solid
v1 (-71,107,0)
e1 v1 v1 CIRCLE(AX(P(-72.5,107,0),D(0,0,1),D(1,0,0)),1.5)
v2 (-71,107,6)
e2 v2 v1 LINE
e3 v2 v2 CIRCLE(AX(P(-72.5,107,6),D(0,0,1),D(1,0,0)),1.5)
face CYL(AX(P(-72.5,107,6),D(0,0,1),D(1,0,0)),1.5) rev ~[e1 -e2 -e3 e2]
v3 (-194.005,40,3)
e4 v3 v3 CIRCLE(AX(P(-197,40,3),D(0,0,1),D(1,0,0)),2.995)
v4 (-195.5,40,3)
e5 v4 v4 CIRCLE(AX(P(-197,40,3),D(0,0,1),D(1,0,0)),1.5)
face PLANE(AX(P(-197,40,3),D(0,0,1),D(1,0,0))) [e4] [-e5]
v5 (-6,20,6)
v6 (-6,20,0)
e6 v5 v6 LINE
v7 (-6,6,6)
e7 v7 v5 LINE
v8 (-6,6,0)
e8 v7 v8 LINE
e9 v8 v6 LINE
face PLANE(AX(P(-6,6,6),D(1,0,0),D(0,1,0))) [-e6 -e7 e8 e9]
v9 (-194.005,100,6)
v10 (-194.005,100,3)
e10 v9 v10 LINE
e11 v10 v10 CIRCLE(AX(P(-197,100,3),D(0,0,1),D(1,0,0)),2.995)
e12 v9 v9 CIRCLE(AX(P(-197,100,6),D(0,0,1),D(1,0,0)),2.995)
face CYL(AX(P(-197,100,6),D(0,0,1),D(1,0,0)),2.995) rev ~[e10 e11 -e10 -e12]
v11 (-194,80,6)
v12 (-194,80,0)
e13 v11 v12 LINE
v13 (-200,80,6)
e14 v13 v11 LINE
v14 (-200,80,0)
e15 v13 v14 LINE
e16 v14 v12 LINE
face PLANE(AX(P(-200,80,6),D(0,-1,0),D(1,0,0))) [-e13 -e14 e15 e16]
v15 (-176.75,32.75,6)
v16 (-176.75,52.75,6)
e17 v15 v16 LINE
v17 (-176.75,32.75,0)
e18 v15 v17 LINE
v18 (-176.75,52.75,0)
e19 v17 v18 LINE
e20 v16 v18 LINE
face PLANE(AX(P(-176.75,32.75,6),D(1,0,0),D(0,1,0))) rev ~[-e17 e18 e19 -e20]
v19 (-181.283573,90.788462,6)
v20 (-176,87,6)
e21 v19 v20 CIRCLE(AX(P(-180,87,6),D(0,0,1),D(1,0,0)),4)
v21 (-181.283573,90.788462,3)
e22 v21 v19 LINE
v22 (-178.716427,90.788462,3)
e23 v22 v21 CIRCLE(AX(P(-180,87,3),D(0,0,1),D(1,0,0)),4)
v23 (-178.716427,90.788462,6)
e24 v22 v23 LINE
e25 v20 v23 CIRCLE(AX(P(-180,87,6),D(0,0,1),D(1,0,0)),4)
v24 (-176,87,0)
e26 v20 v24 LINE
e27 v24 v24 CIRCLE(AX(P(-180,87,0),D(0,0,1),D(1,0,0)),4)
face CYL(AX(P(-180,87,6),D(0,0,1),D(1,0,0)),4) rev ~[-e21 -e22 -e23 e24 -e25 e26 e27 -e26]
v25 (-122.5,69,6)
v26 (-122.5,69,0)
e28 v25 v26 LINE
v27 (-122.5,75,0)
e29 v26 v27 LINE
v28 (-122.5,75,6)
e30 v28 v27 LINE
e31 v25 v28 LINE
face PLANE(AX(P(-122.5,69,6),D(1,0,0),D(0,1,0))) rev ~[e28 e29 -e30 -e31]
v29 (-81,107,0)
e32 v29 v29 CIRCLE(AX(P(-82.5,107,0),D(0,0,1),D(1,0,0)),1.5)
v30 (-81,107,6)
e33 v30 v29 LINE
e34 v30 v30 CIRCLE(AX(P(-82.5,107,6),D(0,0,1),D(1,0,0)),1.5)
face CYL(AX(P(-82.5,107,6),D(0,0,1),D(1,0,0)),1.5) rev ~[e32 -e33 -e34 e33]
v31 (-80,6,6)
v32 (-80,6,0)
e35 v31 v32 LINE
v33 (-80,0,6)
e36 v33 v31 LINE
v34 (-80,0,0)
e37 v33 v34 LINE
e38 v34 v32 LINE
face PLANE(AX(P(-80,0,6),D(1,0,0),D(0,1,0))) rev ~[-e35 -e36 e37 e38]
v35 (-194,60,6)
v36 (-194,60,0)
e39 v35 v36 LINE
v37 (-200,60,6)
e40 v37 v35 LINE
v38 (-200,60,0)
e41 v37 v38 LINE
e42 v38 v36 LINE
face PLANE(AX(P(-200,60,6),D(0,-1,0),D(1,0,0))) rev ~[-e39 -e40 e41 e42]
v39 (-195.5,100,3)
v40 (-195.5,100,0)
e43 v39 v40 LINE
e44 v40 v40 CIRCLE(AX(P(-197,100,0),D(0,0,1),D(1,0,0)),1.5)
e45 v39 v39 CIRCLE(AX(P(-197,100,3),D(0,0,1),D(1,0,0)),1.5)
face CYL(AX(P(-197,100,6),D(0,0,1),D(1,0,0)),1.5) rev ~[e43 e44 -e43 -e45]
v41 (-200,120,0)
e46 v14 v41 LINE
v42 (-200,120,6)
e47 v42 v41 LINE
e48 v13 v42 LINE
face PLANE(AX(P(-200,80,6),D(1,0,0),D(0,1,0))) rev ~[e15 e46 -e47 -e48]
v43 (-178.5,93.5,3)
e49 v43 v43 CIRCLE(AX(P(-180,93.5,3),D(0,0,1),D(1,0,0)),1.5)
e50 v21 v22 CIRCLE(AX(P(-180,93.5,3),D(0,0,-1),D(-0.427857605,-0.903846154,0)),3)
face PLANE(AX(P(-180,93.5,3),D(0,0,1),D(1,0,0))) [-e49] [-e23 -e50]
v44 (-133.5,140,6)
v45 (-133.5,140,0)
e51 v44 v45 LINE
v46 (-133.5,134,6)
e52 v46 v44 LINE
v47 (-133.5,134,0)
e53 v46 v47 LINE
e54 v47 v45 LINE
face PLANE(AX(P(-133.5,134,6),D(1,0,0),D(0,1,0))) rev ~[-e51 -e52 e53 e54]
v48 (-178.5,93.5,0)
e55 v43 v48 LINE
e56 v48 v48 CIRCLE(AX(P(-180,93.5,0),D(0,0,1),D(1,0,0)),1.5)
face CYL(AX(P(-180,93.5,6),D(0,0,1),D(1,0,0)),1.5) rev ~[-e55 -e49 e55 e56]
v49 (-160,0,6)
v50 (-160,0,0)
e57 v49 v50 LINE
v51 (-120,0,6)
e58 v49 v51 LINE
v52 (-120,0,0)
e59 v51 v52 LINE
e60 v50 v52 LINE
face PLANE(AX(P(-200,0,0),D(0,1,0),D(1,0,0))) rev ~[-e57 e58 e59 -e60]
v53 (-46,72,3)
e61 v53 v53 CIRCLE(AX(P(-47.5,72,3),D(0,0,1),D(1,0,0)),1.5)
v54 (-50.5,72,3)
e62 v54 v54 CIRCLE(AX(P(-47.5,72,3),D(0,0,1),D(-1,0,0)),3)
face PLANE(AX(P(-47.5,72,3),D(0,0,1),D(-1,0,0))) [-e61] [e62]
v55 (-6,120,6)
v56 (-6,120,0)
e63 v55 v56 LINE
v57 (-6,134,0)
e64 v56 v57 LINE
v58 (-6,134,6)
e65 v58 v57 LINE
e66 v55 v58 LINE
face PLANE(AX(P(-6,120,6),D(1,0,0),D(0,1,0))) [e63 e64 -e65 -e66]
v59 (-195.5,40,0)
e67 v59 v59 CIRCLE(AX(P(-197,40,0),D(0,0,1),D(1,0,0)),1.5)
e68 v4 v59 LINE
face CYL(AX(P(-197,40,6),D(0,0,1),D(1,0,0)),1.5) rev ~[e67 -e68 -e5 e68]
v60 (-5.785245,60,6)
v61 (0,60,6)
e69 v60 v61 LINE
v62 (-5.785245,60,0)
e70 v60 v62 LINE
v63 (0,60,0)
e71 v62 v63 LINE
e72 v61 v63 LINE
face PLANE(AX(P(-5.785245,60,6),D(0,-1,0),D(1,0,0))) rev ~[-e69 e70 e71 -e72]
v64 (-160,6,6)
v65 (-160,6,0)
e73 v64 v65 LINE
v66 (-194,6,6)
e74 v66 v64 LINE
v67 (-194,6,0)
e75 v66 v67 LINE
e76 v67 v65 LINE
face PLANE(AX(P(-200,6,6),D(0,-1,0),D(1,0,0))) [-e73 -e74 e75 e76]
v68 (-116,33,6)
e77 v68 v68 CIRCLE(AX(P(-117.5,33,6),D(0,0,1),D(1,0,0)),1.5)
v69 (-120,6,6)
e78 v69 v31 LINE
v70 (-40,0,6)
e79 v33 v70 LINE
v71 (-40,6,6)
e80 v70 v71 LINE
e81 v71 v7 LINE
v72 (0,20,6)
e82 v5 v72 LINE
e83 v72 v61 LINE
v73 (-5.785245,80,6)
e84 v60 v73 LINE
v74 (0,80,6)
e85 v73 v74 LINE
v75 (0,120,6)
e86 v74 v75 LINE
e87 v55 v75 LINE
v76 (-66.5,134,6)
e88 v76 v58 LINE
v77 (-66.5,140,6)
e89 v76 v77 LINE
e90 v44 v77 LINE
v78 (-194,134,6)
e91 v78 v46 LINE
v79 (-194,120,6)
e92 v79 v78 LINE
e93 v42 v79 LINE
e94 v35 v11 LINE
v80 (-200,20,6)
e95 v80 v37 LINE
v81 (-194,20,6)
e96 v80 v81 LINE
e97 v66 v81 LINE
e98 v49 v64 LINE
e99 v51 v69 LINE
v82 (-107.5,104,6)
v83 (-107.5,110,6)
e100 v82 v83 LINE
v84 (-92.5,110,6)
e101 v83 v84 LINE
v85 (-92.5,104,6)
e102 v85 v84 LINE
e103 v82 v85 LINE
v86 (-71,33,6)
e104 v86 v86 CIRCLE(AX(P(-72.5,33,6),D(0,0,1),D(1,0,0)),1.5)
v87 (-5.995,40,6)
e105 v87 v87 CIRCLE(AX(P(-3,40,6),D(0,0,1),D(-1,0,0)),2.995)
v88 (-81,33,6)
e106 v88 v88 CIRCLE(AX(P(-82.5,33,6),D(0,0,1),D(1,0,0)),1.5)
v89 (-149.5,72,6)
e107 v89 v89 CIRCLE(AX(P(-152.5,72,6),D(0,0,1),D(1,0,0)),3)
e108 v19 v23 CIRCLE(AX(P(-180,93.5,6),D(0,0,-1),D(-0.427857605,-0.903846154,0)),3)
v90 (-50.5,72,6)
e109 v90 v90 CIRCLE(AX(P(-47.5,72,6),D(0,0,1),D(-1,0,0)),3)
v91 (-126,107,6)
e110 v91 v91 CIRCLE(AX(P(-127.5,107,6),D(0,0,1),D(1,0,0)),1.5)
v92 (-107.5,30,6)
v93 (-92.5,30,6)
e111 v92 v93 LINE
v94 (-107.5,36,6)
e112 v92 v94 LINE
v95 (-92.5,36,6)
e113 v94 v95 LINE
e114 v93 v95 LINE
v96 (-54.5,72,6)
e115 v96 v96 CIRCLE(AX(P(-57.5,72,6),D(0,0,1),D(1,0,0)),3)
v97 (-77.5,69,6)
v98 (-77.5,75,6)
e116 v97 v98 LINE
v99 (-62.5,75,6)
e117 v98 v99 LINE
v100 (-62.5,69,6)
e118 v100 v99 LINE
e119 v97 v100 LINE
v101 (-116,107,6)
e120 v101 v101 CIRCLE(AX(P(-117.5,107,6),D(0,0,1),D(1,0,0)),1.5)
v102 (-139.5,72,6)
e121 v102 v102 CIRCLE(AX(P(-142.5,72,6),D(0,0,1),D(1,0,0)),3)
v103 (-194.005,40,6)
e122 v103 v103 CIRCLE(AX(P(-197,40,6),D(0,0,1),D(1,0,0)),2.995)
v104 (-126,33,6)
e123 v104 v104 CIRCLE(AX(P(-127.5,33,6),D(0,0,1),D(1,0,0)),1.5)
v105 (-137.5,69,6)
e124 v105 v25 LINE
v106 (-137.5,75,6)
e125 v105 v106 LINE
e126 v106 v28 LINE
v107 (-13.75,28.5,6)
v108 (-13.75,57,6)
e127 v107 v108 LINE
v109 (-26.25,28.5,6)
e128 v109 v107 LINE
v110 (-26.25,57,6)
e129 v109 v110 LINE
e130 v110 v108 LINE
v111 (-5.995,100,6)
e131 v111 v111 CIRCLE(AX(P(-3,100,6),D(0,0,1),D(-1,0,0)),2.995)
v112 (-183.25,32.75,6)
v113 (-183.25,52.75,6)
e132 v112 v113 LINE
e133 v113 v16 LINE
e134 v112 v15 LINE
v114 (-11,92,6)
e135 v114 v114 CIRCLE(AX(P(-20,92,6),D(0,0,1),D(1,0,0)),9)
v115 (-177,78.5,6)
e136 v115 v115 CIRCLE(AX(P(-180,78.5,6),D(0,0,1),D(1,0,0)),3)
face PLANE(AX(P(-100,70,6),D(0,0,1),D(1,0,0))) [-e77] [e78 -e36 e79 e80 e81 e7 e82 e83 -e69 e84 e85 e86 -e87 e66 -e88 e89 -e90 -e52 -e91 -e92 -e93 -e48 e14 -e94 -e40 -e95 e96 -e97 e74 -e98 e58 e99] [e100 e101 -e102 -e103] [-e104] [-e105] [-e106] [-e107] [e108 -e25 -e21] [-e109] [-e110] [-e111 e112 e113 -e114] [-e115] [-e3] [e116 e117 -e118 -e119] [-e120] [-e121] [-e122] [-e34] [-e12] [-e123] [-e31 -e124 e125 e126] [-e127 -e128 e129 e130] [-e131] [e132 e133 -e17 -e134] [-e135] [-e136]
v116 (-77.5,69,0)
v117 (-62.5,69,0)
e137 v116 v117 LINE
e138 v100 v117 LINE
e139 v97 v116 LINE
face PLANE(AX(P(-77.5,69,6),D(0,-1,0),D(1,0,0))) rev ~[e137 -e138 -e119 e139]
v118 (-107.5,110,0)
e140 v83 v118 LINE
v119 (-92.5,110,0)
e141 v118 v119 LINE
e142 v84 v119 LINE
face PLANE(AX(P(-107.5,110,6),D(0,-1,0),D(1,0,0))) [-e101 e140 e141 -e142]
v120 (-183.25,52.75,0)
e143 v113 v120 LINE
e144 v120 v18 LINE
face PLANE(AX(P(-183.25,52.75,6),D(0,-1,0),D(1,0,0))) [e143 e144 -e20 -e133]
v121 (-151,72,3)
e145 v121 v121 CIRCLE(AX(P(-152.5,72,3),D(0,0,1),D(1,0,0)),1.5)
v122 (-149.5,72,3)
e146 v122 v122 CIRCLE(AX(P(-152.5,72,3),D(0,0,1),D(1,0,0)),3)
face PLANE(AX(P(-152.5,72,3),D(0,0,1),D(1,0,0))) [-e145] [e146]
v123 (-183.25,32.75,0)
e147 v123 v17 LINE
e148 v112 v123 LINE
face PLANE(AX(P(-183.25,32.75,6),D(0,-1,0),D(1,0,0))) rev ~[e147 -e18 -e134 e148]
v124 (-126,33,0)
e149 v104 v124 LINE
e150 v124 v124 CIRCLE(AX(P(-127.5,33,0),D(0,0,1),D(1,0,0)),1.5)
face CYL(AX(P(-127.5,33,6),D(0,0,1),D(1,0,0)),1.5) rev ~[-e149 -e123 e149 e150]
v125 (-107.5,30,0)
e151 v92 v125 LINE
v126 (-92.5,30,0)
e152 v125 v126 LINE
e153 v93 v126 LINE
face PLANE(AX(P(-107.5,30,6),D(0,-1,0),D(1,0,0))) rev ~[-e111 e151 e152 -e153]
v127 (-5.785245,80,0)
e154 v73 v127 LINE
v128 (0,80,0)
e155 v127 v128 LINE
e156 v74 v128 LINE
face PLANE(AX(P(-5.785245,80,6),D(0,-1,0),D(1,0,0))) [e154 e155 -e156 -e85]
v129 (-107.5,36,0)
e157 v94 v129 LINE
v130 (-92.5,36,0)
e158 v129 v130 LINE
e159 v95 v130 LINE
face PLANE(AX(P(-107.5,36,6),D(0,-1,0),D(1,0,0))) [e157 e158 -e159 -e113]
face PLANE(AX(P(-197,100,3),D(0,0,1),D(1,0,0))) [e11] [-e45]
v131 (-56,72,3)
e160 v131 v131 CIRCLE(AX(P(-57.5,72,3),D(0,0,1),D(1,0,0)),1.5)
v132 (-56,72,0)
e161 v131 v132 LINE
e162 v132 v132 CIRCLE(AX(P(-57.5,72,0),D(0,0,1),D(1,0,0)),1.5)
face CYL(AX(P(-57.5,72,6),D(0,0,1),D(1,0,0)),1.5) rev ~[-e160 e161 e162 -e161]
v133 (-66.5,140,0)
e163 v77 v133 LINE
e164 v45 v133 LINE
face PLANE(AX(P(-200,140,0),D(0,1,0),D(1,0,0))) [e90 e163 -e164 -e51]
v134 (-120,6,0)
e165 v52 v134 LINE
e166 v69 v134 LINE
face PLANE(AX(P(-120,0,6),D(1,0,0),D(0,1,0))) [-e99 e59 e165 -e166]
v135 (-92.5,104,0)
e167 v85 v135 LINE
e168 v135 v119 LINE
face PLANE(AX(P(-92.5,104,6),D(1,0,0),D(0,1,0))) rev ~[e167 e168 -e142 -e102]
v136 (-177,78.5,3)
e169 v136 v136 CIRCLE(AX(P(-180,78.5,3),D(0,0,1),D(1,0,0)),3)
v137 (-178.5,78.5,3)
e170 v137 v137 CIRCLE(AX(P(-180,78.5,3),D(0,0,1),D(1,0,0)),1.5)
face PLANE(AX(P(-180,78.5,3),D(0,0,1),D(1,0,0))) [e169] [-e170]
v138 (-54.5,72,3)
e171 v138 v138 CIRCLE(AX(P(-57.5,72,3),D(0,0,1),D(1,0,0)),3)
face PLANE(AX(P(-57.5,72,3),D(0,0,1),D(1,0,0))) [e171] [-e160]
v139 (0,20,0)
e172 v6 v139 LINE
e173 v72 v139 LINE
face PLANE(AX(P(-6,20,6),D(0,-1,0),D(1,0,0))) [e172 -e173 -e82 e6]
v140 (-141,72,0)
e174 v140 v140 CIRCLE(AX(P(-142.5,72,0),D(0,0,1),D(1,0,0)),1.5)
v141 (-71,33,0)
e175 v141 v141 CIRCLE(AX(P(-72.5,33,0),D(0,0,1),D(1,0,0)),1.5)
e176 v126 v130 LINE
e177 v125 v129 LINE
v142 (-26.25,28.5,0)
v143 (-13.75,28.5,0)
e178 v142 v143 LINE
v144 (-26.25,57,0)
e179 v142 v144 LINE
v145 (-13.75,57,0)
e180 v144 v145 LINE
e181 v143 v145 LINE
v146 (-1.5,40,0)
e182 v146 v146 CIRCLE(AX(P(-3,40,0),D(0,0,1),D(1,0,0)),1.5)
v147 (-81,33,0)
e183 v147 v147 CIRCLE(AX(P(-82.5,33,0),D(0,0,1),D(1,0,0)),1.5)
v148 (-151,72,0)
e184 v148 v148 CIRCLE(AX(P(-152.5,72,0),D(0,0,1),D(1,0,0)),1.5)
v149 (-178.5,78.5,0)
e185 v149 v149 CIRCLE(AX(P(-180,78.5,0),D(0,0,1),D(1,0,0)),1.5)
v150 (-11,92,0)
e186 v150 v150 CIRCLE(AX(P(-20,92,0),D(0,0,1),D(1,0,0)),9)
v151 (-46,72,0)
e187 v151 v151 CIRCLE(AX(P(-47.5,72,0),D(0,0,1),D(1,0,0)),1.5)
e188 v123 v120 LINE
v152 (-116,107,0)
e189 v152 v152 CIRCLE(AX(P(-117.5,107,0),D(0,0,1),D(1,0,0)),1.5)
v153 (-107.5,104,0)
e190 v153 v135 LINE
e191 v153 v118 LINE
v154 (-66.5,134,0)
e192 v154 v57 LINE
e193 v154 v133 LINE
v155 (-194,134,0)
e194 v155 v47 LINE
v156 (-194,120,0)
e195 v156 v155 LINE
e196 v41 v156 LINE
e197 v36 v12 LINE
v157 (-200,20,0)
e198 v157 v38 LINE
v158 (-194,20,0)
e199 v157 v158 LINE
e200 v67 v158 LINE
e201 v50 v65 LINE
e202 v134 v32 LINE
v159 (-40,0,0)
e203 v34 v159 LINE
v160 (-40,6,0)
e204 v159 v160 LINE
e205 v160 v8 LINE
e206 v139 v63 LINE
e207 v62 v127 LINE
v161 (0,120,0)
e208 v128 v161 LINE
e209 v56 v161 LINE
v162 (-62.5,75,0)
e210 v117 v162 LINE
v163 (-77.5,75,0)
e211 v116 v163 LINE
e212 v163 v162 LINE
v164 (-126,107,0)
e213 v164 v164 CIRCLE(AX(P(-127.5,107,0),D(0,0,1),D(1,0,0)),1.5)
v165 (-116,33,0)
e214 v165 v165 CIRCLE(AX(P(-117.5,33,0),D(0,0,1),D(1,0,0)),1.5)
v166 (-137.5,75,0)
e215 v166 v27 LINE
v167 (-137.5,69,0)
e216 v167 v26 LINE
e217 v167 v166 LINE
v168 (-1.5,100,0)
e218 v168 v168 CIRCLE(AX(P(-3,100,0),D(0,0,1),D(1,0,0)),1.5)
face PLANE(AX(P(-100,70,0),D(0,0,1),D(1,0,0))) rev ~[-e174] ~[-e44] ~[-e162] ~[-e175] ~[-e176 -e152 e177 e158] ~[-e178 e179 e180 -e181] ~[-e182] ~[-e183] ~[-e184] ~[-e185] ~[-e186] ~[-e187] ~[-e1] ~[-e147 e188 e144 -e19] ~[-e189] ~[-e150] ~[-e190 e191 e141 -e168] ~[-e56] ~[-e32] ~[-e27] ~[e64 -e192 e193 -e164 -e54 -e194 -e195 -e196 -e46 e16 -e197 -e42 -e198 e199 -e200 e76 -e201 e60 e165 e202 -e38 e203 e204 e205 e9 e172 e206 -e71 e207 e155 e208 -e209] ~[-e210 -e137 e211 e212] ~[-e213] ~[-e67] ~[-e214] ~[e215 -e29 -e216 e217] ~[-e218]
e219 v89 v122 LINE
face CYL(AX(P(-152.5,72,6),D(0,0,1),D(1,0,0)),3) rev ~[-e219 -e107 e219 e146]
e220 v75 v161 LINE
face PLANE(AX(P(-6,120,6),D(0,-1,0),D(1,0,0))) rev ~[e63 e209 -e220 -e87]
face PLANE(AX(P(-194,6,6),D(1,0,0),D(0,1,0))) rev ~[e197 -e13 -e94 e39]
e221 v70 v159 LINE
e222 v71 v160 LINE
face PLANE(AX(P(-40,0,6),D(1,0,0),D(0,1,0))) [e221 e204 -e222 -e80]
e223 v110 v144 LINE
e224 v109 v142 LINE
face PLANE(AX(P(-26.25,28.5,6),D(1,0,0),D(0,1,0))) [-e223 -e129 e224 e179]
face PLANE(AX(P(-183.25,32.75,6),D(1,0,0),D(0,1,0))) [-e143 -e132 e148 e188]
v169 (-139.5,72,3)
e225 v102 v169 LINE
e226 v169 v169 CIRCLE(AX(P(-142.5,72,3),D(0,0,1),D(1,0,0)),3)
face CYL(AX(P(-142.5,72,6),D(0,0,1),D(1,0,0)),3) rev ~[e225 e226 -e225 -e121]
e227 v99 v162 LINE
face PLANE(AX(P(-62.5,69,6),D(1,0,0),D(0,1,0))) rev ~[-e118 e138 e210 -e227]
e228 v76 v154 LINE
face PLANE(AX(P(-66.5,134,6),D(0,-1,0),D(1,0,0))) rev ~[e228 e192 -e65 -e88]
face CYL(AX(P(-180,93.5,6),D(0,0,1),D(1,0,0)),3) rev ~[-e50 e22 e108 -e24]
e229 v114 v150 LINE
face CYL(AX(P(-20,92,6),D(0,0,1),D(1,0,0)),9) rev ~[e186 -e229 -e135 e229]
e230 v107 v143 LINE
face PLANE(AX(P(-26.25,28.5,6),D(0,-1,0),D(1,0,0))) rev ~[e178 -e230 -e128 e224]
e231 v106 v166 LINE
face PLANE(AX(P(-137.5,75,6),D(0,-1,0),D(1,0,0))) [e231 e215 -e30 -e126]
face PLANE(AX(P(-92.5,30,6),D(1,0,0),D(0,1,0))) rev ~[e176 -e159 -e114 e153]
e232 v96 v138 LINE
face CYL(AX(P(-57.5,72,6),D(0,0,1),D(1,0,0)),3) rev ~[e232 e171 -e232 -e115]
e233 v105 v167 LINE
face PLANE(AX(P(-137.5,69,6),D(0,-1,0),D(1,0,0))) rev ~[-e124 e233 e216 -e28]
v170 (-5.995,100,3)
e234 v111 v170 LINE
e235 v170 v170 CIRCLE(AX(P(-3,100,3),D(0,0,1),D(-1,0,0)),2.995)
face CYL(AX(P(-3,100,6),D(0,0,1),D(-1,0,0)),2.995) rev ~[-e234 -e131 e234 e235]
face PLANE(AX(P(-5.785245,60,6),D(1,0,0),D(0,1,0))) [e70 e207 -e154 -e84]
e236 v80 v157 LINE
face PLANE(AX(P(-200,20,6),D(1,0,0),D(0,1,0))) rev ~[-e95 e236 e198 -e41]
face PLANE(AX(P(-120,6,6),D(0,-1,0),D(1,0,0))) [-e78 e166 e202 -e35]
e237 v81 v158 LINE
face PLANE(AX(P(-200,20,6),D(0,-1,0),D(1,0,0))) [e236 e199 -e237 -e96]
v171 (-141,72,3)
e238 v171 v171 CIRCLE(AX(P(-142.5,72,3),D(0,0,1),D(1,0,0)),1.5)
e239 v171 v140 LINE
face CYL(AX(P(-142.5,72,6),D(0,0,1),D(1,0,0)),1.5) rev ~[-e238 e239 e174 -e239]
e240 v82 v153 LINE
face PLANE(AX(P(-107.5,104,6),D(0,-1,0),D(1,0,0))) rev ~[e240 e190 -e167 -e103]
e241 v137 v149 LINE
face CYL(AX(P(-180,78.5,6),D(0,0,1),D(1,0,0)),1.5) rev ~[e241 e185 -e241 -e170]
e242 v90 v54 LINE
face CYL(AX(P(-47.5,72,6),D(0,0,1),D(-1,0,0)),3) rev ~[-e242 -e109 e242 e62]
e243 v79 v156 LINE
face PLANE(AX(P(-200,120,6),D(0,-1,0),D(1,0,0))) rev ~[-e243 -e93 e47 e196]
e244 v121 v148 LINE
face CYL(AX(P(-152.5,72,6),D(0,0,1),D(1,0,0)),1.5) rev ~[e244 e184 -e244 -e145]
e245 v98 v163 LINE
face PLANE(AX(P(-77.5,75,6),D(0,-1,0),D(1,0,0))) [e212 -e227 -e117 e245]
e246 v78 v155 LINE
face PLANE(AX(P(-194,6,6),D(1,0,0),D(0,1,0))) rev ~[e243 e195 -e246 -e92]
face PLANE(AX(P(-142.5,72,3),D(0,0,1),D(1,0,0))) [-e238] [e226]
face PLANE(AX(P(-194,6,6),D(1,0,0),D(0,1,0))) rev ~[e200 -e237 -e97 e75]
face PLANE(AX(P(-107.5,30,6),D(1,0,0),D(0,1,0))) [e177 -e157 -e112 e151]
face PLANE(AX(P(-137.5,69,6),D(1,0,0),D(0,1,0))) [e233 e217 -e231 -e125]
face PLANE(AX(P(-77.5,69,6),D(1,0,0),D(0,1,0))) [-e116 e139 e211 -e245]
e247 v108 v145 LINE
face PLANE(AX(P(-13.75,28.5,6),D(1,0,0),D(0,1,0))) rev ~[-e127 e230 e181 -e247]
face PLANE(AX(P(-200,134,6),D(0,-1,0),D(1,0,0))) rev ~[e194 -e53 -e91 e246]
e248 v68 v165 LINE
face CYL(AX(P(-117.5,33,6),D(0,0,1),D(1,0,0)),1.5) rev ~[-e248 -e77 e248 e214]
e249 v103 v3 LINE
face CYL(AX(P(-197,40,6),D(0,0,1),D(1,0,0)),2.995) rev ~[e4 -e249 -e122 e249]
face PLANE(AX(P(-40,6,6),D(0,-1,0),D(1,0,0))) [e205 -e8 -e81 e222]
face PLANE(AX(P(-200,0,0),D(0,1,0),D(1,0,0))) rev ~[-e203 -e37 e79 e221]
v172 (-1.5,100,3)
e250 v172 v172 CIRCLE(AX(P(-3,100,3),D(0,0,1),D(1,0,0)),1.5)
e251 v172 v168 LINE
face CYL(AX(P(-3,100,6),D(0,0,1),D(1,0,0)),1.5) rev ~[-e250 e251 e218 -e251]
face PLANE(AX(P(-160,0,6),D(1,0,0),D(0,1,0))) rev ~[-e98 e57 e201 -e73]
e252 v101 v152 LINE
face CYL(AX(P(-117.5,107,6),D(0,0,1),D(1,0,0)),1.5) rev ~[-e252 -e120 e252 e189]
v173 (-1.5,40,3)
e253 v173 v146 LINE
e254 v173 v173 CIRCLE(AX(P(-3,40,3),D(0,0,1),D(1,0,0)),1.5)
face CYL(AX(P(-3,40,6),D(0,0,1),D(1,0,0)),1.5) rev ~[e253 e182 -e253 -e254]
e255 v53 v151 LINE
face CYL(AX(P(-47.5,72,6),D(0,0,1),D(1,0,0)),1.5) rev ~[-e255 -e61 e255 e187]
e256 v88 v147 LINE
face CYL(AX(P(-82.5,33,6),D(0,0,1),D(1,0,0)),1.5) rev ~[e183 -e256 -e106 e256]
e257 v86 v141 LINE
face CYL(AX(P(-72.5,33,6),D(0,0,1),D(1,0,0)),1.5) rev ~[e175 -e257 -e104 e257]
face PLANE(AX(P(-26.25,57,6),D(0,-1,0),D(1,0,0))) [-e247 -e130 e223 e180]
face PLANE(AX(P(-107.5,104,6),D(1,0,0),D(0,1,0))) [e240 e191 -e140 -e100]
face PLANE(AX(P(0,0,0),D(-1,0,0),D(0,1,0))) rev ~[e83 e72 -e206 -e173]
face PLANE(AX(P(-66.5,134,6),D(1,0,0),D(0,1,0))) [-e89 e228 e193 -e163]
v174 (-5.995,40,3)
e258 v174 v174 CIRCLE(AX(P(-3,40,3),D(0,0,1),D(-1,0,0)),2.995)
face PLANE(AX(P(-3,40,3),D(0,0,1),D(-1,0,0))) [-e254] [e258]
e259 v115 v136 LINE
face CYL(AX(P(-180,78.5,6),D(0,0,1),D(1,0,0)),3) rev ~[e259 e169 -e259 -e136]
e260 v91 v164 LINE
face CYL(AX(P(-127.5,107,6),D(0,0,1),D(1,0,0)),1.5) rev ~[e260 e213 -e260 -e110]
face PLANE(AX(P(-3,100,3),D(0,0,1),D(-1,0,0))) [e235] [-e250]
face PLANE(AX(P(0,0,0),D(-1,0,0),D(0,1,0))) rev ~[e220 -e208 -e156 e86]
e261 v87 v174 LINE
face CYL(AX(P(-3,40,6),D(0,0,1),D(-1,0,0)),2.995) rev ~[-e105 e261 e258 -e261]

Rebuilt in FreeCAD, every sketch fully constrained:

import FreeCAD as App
import Part
import Sketcher
Q = App.Units.Quantity

doc = App.newDocument("Part")
body = doc.addObject("PartDesign::Body", "Body")

sketch1 = body.newObject("Sketcher::SketchObject", "Sketch")
sketch1.AttachmentSupport = (doc.getObject("XY_Plane"), [""])
sketch1.MapMode = "FlatFace"
sketch1.addGeometry([
    Part.LineSegment(App.Vector(-200, 140, 0), App.Vector(-200, 0, 0)),
    Part.LineSegment(App.Vector(-200, 0, 0), App.Vector(0, 0, 0)),
    Part.LineSegment(App.Vector(0, 0, 0), App.Vector(0, 140, 0)),
    Part.LineSegment(App.Vector(0, 140, 0), App.Vector(-200, 140, 0)),
], False)
sketch1.addConstraint([
    Sketcher.Constraint("Coincident", 0, 2, 1, 1),
    Sketcher.Constraint("Coincident", 1, 2, 2, 1),
    Sketcher.Constraint("Coincident", 2, 2, 3, 1),
    Sketcher.Constraint("Coincident", 3, 2, 0, 1),
    Sketcher.Constraint("Vertical", 0),
    Sketcher.Constraint("Horizontal", 1),
    Sketcher.Constraint("Vertical", 2),
    Sketcher.Constraint("Horizontal", 3),
    Sketcher.Constraint("Coincident", 1, 2, -1, 1),
    Sketcher.Constraint("DistanceX", 1, 1, 1, 2, Q("200 mm")),
    Sketcher.Constraint("DistanceY", 0, 2, 0, 1, Q("140 mm")),
])
pad1 = body.newObject("PartDesign::Pad", "Pad")
pad1.Profile = sketch1
pad1.Length = 6

sketch2 = body.newObject("Sketcher::SketchObject", "Sketch001")
sketch2.AttachmentSupport = (doc.getObject("XY_Plane"), [""])
sketch2.MapMode = "FlatFace"
sketch2.AttachmentOffset = App.Placement(App.Vector(0, 0, 6), App.Rotation())
sketch2.addGeometry([
    Part.Circle(App.Vector(-20, 92, 0), App.Vector(0, 0, 1), 9),
    Part.Circle(App.Vector(-180, 87, 0), App.Vector(0, 0, 1), 4),
    Part.LineSegment(App.Vector(-183.25, 52.75, 0), App.Vector(-183.25, 32.75, 0)),
    Part.LineSegment(App.Vector(-183.25, 32.75, 0), App.Vector(-176.75, 32.75, 0)),
    Part.LineSegment(App.Vector(-176.75, 32.75, 0), App.Vector(-176.75, 52.75, 0)),
    Part.LineSegment(App.Vector(-176.75, 52.75, 0), App.Vector(-183.25, 52.75, 0)),
    Part.LineSegment(App.Vector(-26.25, 57, 0), App.Vector(-26.25, 28.5, 0)),
    Part.LineSegment(App.Vector(-26.25, 28.5, 0), App.Vector(-13.75, 28.5, 0)),
    Part.LineSegment(App.Vector(-13.75, 28.5, 0), App.Vector(-13.75, 57, 0)),
    Part.LineSegment(App.Vector(-13.75, 57, 0), App.Vector(-26.25, 57, 0)),
], False)
sketch2.addConstraint([
    Sketcher.Constraint("Coincident", 2, 2, 3, 1),
    Sketcher.Constraint("Coincident", 3, 2, 4, 1),
    Sketcher.Constraint("Coincident", 4, 2, 5, 1),
    Sketcher.Constraint("Coincident", 5, 2, 2, 1),
    Sketcher.Constraint("Coincident", 6, 2, 7, 1),
    Sketcher.Constraint("Coincident", 7, 2, 8, 1),
    Sketcher.Constraint("Coincident", 8, 2, 9, 1),
    Sketcher.Constraint("Coincident", 9, 2, 6, 1),
    Sketcher.Constraint("Vertical", 2),
    Sketcher.Constraint("Horizontal", 3),
    Sketcher.Constraint("Vertical", 4),
    Sketcher.Constraint("Horizontal", 5),
    Sketcher.Constraint("Vertical", 6),
    Sketcher.Constraint("Horizontal", 7),
    Sketcher.Constraint("Vertical", 8),
    Sketcher.Constraint("Horizontal", 9),
    Sketcher.Constraint("Diameter", 0, Q("18 mm")),
    Sketcher.Constraint("Diameter", 1, Q("8 mm")),
    Sketcher.Constraint("DistanceY", 2, 2, 2, 1, Q("20 mm")),
    Sketcher.Constraint("DistanceX", 3, 1, 3, 2, Q("6.5 mm")),
    Sketcher.Constraint("DistanceX", 7, 1, 7, 2, Q("12.5 mm")),
    Sketcher.Constraint("DistanceY", 6, 2, 6, 1, Q("28.5 mm")),
    Sketcher.Constraint("DistanceX", 0, 3, -1, 1, Q("20 mm")),
    Sketcher.Constraint("DistanceY", -1, 1, 0, 3, Q("92 mm")),
    Sketcher.Constraint("DistanceX", 1, 3, -1, 1, Q("180 mm")),
    Sketcher.Constraint("DistanceY", -1, 1, 1, 3, Q("87 mm")),
    Sketcher.Constraint("DistanceY", -1, 1, 8, 2, Q("57 mm")),
    Sketcher.Constraint("DistanceX", 2, 2, 6, 2, Q("157 mm")),
    Sketcher.Constraint("DistanceX", 2, 2, -1, 1, Q("183.25 mm")),
    Sketcher.Constraint("DistanceY", -1, 1, 2, 2, Q("32.75 mm")),
])
pocket1 = body.newObject("PartDesign::Pocket", "Pocket")
pocket1.Profile = sketch2
pocket1.Type = "ThroughAll"

sketch3 = body.newObject("Sketcher::SketchObject", "Sketch002")
sketch3.AttachmentSupport = (doc.getObject("XY_Plane"), [""])
sketch3.MapMode = "FlatFace"
sketch3.AttachmentOffset = App.Placement(App.Vector(0, 0, 6), App.Rotation())
sketch3.addGeometry([
    Part.LineSegment(App.Vector(-200, 6, 0), App.Vector(-200, 0, 0)),
    Part.LineSegment(App.Vector(-200, 0, 0), App.Vector(-160, 0, 0)),
    Part.LineSegment(App.Vector(-160, 0, 0), App.Vector(-160, 6, 0)),
    Part.LineSegment(App.Vector(-160, 6, 0), App.Vector(-200, 6, 0)),
    Part.LineSegment(App.Vector(-120, 6, 0), App.Vector(-120, 0, 0)),
    Part.LineSegment(App.Vector(-120, 0, 0), App.Vector(-80, 0, 0)),
    Part.LineSegment(App.Vector(-80, 0, 0), App.Vector(-80, 6, 0)),
    Part.LineSegment(App.Vector(-80, 6, 0), App.Vector(-120, 6, 0)),
    Part.LineSegment(App.Vector(-40, 6, 0), App.Vector(-40, 0, 0)),
    Part.LineSegment(App.Vector(-40, 0, 0), App.Vector(0, 0, 0)),
    Part.LineSegment(App.Vector(0, 0, 0), App.Vector(0, 6, 0)),
    Part.LineSegment(App.Vector(0, 6, 0), App.Vector(-40, 6, 0)),
    Part.LineSegment(App.Vector(-200, 140, 0), App.Vector(-200, 134, 0)),
    Part.LineSegment(App.Vector(-200, 134, 0), App.Vector(-133.5, 134, 0)),
    Part.LineSegment(App.Vector(-133.5, 134, 0), App.Vector(-133.5, 140, 0)),
    Part.LineSegment(App.Vector(-133.5, 140, 0), App.Vector(-200, 140, 0)),
    Part.LineSegment(App.Vector(-66.5, 140, 0), App.Vector(-66.5, 134, 0)),
    Part.LineSegment(App.Vector(-66.5, 134, 0), App.Vector(0, 134, 0)),
    Part.LineSegment(App.Vector(0, 134, 0), App.Vector(0, 140, 0)),
    Part.LineSegment(App.Vector(0, 140, 0), App.Vector(-66.5, 140, 0)),
], False)
sketch3.addConstraint([
    Sketcher.Constraint("Coincident", 0, 2, 1, 1),
    Sketcher.Constraint("Coincident", 1, 2, 2, 1),
    Sketcher.Constraint("Coincident", 2, 2, 3, 1),
    Sketcher.Constraint("Coincident", 3, 2, 0, 1),
    Sketcher.Constraint("Coincident", 4, 2, 5, 1),
    Sketcher.Constraint("Coincident", 5, 2, 6, 1),
    Sketcher.Constraint("Coincident", 6, 2, 7, 1),
    Sketcher.Constraint("Coincident", 7, 2, 4, 1),
    Sketcher.Constraint("Coincident", 8, 2, 9, 1),
    Sketcher.Constraint("Coincident", 9, 2, 10, 1),
    Sketcher.Constraint("Coincident", 10, 2, 11, 1),
    Sketcher.Constraint("Coincident", 11, 2, 8, 1),
    Sketcher.Constraint("Coincident", 12, 2, 13, 1),
    Sketcher.Constraint("Coincident", 13, 2, 14, 1),
    Sketcher.Constraint("Coincident", 14, 2, 15, 1),
    Sketcher.Constraint("Coincident", 15, 2, 12, 1),
    Sketcher.Constraint("Coincident", 16, 2, 17, 1),
    Sketcher.Constraint("Coincident", 17, 2, 18, 1),
    Sketcher.Constraint("Coincident", 18, 2, 19, 1),
    Sketcher.Constraint("Coincident", 19, 2, 16, 1),
    Sketcher.Constraint("Vertical", 0),
    Sketcher.Constraint("Horizontal", 1),
    Sketcher.Constraint("Vertical", 2),
    Sketcher.Constraint("Horizontal", 3),
    Sketcher.Constraint("Vertical", 4),
    Sketcher.Constraint("Horizontal", 5),
    Sketcher.Constraint("Vertical", 6),
    Sketcher.Constraint("Horizontal", 7),
    Sketcher.Constraint("Vertical", 8),
    Sketcher.Constraint("Horizontal", 9),
    Sketcher.Constraint("Vertical", 10),
    Sketcher.Constraint("Horizontal", 11),
    Sketcher.Constraint("Vertical", 12),
    Sketcher.Constraint("Horizontal", 13),
    Sketcher.Constraint("Vertical", 14),
    Sketcher.Constraint("Horizontal", 15),
    Sketcher.Constraint("Vertical", 16),
    Sketcher.Constraint("Horizontal", 17),
    Sketcher.Constraint("Vertical", 18),
    Sketcher.Constraint("Horizontal", 19),
    Sketcher.Constraint("Coincident", 9, 2, -1, 1),
    Sketcher.Constraint("PointOnObject", 0, 2, -1),
    Sketcher.Constraint("PointOnObject", 4, 2, -1),
    Sketcher.Constraint("PointOnObject", 17, 2, -2),
    Sketcher.Constraint("Horizontal", 3, 2, 6, 2),
    Sketcher.Constraint("Horizontal", 7, 2, 10, 2),
    Sketcher.Constraint("Horizontal", 13, 2, 16, 2),
    Sketcher.Constraint("Horizontal", 15, 2, 18, 2),
    Sketcher.Constraint("Vertical", 3, 2, 12, 2),
    Sketcher.Constraint("Equal", 3, 5),
    Sketcher.Constraint("Equal", 7, 9),
    Sketcher.Constraint("Equal", 15, 17),
    Sketcher.Constraint("Equal", 10, 12),
    Sketcher.Constraint("DistanceX", 1, 1, 1, 2, Q("40 mm")),
    Sketcher.Constraint("DistanceY", 0, 2, 0, 1, Q("6 mm")),
    Sketcher.Constraint("DistanceX", 13, 1, 13, 2, Q("66.5 mm")),
    Sketcher.Constraint("DistanceX", 0, 2, -1, 1, Q("200 mm")),
    Sketcher.Constraint("DistanceX", 4, 2, -1, 1, Q("120 mm")),
    Sketcher.Constraint("DistanceY", -1, 1, 12, 2, Q("134 mm")),
])
pocket2 = body.newObject("PartDesign::Pocket", "Pocket001")
pocket2.Profile = sketch3
pocket2.Length = 6

sketch4 = body.newObject("Sketcher::SketchObject", "Sketch003")
sketch4.AttachmentSupport = (doc.getObject("XY_Plane"), [""])
sketch4.MapMode = "FlatFace"
sketch4.AttachmentOffset = App.Placement(App.Vector(0, 0, 6), App.Rotation())
sketch4.addGeometry([
    Part.LineSegment(App.Vector(-200, 134, 0), App.Vector(-200, 6, 0)),
    Part.LineSegment(App.Vector(-200, 6, 0), App.Vector(-194, 6, 0)),
    Part.LineSegment(App.Vector(-194, 6, 0), App.Vector(-194, 134, 0)),
    Part.LineSegment(App.Vector(-194, 134, 0), App.Vector(-200, 134, 0)),
    Part.LineSegment(App.Vector(-6, 134, 0), App.Vector(-6, 120, 0)),
    Part.LineSegment(App.Vector(-6, 120, 0), App.Vector(0, 120, 0)),
    Part.LineSegment(App.Vector(0, 120, 0), App.Vector(0, 134, 0)),
    Part.LineSegment(App.Vector(0, 134, 0), App.Vector(-6, 134, 0)),
    Part.LineSegment(App.Vector(-6, 20, 0), App.Vector(-6, 6, 0)),
    Part.LineSegment(App.Vector(-6, 6, 0), App.Vector(0, 6, 0)),
    Part.LineSegment(App.Vector(0, 6, 0), App.Vector(0, 20, 0)),
    Part.LineSegment(App.Vector(0, 20, 0), App.Vector(-6, 20, 0)),
    Part.Circle(App.Vector(-3, 40, 0), App.Vector(0, 0, 1), 1.5),
    Part.Circle(App.Vector(-3, 100, 0), App.Vector(0, 0, 1), 1.5),
], False)
sketch4.addConstraint([
    Sketcher.Constraint("Coincident", 0, 2, 1, 1),
    Sketcher.Constraint("Coincident", 1, 2, 2, 1),
    Sketcher.Constraint("Coincident", 2, 2, 3, 1),
    Sketcher.Constraint("Coincident", 3, 2, 0, 1),
    Sketcher.Constraint("Coincident", 4, 2, 5, 1),
    Sketcher.Constraint("Coincident", 5, 2, 6, 1),
    Sketcher.Constraint("Coincident", 6, 2, 7, 1),
    Sketcher.Constraint("Coincident", 7, 2, 4, 1),
    Sketcher.Constraint("Coincident", 8, 2, 9, 1),
    Sketcher.Constraint("Coincident", 9, 2, 10, 1),
    Sketcher.Constraint("Coincident", 10, 2, 11, 1),
    Sketcher.Constraint("Coincident", 11, 2, 8, 1),
    Sketcher.Constraint("Vertical", 0),
    Sketcher.Constraint("Horizontal", 1),
    Sketcher.Constraint("Vertical", 2),
    Sketcher.Constraint("Horizontal", 3),
    Sketcher.Constraint("Vertical", 4),
    Sketcher.Constraint("Horizontal", 5),
    Sketcher.Constraint("Vertical", 6),
    Sketcher.Constraint("Horizontal", 7),
    Sketcher.Constraint("Vertical", 8),
    Sketcher.Constraint("Horizontal", 9),
    Sketcher.Constraint("Vertical", 10),
    Sketcher.Constraint("Horizontal", 11),
    Sketcher.Constraint("Equal", 12, 13),
    Sketcher.Constraint("PointOnObject", 5, 2, -2),
    Sketcher.Constraint("PointOnObject", 9, 2, -2),
    Sketcher.Constraint("Horizontal", 3, 2, 6, 2),
    Sketcher.Constraint("Horizontal", 1, 2, 8, 2),
    Sketcher.Constraint("Vertical", 12, 3, 13, 3),
    Sketcher.Constraint("Vertical", 7, 2, 8, 2),
    Sketcher.Constraint("Equal", 3, 5),
    Sketcher.Constraint("Equal", 6, 8),
    Sketcher.Constraint("Diameter", 12, Q("3 mm")),
    Sketcher.Constraint("DistanceX", 1, 1, 1, 2, Q("6 mm")),
    Sketcher.Constraint("DistanceY", 0, 2, 0, 1, Q("128 mm")),
    Sketcher.Constraint("DistanceY", 4, 2, 4, 1, Q("14 mm")),
    Sketcher.Constraint("DistanceX", 12, 3, -1, 1, Q("3 mm")),
    Sketcher.Constraint("DistanceY", -1, 1, 12, 3, Q("40 mm")),
    Sketcher.Constraint("DistanceY", -1, 1, 13, 3, Q("100 mm")),
    Sketcher.Constraint("DistanceX", 0, 2, -1, 1, Q("200 mm")),
    Sketcher.Constraint("DistanceY", -1, 1, 0, 2, Q("6 mm")),
])
pocket3 = body.newObject("PartDesign::Pocket", "Pocket002")
pocket3.Profile = sketch4
pocket3.Length = 6

sketch5 = body.newObject("Sketcher::SketchObject", "Sketch004")
sketch5.AttachmentSupport = (doc.getObject("XY_Plane"), [""])
sketch5.MapMode = "FlatFace"
sketch5.AttachmentOffset = App.Placement(App.Vector(0, 0, 6), App.Rotation())
sketch5.addGeometry([
    Part.LineSegment(App.Vector(-5.785245, 80, 0), App.Vector(-5.785245, 60, 0)),
    Part.LineSegment(App.Vector(-5.785245, 60, 0), App.Vector(0, 60, 0)),
    Part.LineSegment(App.Vector(0, 60, 0), App.Vector(0, 80, 0)),
    Part.LineSegment(App.Vector(0, 80, 0), App.Vector(-5.785245, 80, 0)),
], False)
sketch5.addConstraint([
    Sketcher.Constraint("Coincident", 0, 2, 1, 1),
    Sketcher.Constraint("Coincident", 1, 2, 2, 1),
    Sketcher.Constraint("Coincident", 2, 2, 3, 1),
    Sketcher.Constraint("Coincident", 3, 2, 0, 1),
    Sketcher.Constraint("Vertical", 0),
    Sketcher.Constraint("Horizontal", 1),
    Sketcher.Constraint("Vertical", 2),
    Sketcher.Constraint("Horizontal", 3),
    Sketcher.Constraint("PointOnObject", 1, 2, -2),
    Sketcher.Constraint("DistanceY", 0, 2, 0, 1, Q("20 mm")),
    Sketcher.Constraint("DistanceY", -1, 1, 0, 2, Q("60 mm")),
    Sketcher.Constraint("DistanceX", 1, 1, 1, 2, Q("5.785245 mm")),
])
pocket4 = body.newObject("PartDesign::Pocket", "Pocket003")
pocket4.Profile = sketch5
pocket4.Length = 6

sketch6 = body.newObject("Sketcher::SketchObject", "Sketch005")
sketch6.AttachmentSupport = (doc.getObject("XY_Plane"), [""])
sketch6.MapMode = "FlatFace"
sketch6.AttachmentOffset = App.Placement(App.Vector(0, 0, 6), App.Rotation())
sketch6.addGeometry([
    Part.LineSegment(App.Vector(-200, 120, 0), App.Vector(-200, 80, 0)),
    Part.LineSegment(App.Vector(-200, 80, 0), App.Vector(-194, 80, 0)),
    Part.LineSegment(App.Vector(-194, 80, 0), App.Vector(-194, 120, 0)),
    Part.LineSegment(App.Vector(-194, 120, 0), App.Vector(-200, 120, 0)),
    Part.LineSegment(App.Vector(-200, 60, 0), App.Vector(-200, 20, 0)),
    Part.LineSegment(App.Vector(-200, 20, 0), App.Vector(-194, 20, 0)),
    Part.LineSegment(App.Vector(-194, 20, 0), App.Vector(-194, 60, 0)),
    Part.LineSegment(App.Vector(-194, 60, 0), App.Vector(-200, 60, 0)),
], False)
sketch6.addConstraint([
    Sketcher.Constraint("Coincident", 0, 2, 1, 1),
    Sketcher.Constraint("Coincident", 1, 2, 2, 1),
    Sketcher.Constraint("Coincident", 2, 2, 3, 1),
    Sketcher.Constraint("Coincident", 3, 2, 0, 1),
    Sketcher.Constraint("Coincident", 4, 2, 5, 1),
    Sketcher.Constraint("Coincident", 5, 2, 6, 1),
    Sketcher.Constraint("Coincident", 6, 2, 7, 1),
    Sketcher.Constraint("Coincident", 7, 2, 4, 1),
    Sketcher.Constraint("Vertical", 0),
    Sketcher.Constraint("Horizontal", 1),
    Sketcher.Constraint("Vertical", 2),
    Sketcher.Constraint("Horizontal", 3),
    Sketcher.Constraint("Vertical", 4),
    Sketcher.Constraint("Horizontal", 5),
    Sketcher.Constraint("Vertical", 6),
    Sketcher.Constraint("Horizontal", 7),
    Sketcher.Constraint("Vertical", 3, 2, 4, 2),
    Sketcher.Constraint("Vertical", 2, 2, 5, 2),
    Sketcher.Constraint("Equal", 2, 4),
    Sketcher.Constraint("DistanceX", 1, 1, 1, 2, Q("6 mm")),
    Sketcher.Constraint("DistanceY", 0, 2, 0, 1, Q("40 mm")),
    Sketcher.Constraint("DistanceX", 0, 2, -1, 1, Q("200 mm")),
    Sketcher.Constraint("DistanceY", -1, 1, 0, 2, Q("80 mm")),
    Sketcher.Constraint("DistanceY", -1, 1, 4, 2, Q("20 mm")),
])
pad2 = body.newObject("PartDesign::Pad", "Pad001")
pad2.Profile = sketch6
pad2.Length = 6
pad2.Reversed = True

sketch7 = body.newObject("Sketcher::SketchObject", "Sketch006")
sketch7.AttachmentSupport = (doc.getObject("XY_Plane"), [""])
sketch7.MapMode = "FlatFace"
sketch7.AttachmentOffset = App.Placement(App.Vector(0, 0, 6), App.Rotation())
sketch7.addGeometry([
    Part.Circle(App.Vector(-197, 100, 0), App.Vector(0, 0, 1), 1.5),
    Part.Circle(App.Vector(-197, 40, 0), App.Vector(0, 0, 1), 1.5),
], False)
sketch7.addConstraint([
    Sketcher.Constraint("Equal", 0, 1),
    Sketcher.Constraint("Vertical", 0, 3, 1, 3),
    Sketcher.Constraint("Diameter", 0, Q("3 mm")),
    Sketcher.Constraint("DistanceX", 0, 3, -1, 1, Q("197 mm")),
    Sketcher.Constraint("DistanceY", -1, 1, 0, 3, Q("100 mm")),
    Sketcher.Constraint("DistanceY", -1, 1, 1, 3, Q("40 mm")),
])
pocket5 = body.newObject("PartDesign::Pocket", "Pocket004")
pocket5.Profile = sketch7
pocket5.Length = 6

sketch8 = body.newObject("Sketcher::SketchObject", "Sketch007")
sketch8.AttachmentSupport = (doc.getObject("XY_Plane"), [""])
sketch8.MapMode = "FlatFace"
sketch8.AttachmentOffset = App.Placement(App.Vector(0, 0, 6), App.Rotation())
sketch8.addGeometry([
    Part.Circle(App.Vector(-152.5, 72, 0), App.Vector(0, 0, 1), 1.5),
    Part.Circle(App.Vector(-142.5, 72, 0), App.Vector(0, 0, 1), 1.5),
    Part.Circle(App.Vector(-57.5, 72, 0), App.Vector(0, 0, 1), 1.5),
    Part.Circle(App.Vector(-47.5, 72, 0), App.Vector(0, 0, 1), 1.5),
    Part.LineSegment(App.Vector(-77.5, 75, 0), App.Vector(-77.5, 69, 0)),
    Part.LineSegment(App.Vector(-77.5, 69, 0), App.Vector(-62.5, 69, 0)),
    Part.LineSegment(App.Vector(-62.5, 69, 0), App.Vector(-62.5, 75, 0)),
    Part.LineSegment(App.Vector(-62.5, 75, 0), App.Vector(-77.5, 75, 0)),
    Part.LineSegment(App.Vector(-137.5, 75, 0), App.Vector(-137.5, 69, 0)),
    Part.LineSegment(App.Vector(-137.5, 69, 0), App.Vector(-122.5, 69, 0)),
    Part.LineSegment(App.Vector(-122.5, 69, 0), App.Vector(-122.5, 75, 0)),
    Part.LineSegment(App.Vector(-122.5, 75, 0), App.Vector(-137.5, 75, 0)),
], False)
sketch8.addConstraint([
    Sketcher.Constraint("Coincident", 4, 2, 5, 1),
    Sketcher.Constraint("Coincident", 5, 2, 6, 1),
    Sketcher.Constraint("Coincident", 6, 2, 7, 1),
    Sketcher.Constraint("Coincident", 7, 2, 4, 1),
    Sketcher.Constraint("Coincident", 8, 2, 9, 1),
    Sketcher.Constraint("Coincident", 9, 2, 10, 1),
    Sketcher.Constraint("Coincident", 10, 2, 11, 1),
    Sketcher.Constraint("Coincident", 11, 2, 8, 1),
    Sketcher.Constraint("Vertical", 4),
    Sketcher.Constraint("Horizontal", 5),
    Sketcher.Constraint("Vertical", 6),
    Sketcher.Constraint("Horizontal", 7),
    Sketcher.Constraint("Vertical", 8),
    Sketcher.Constraint("Horizontal", 9),
    Sketcher.Constraint("Vertical", 10),
    Sketcher.Constraint("Horizontal", 11),
    Sketcher.Constraint("Equal", 0, 1),
    Sketcher.Constraint("Equal", 1, 2),
    Sketcher.Constraint("Equal", 2, 3),
    Sketcher.Constraint("Horizontal", 0, 3, 1, 3),
    Sketcher.Constraint("Horizontal", 1, 3, 2, 3),
    Sketcher.Constraint("Horizontal", 2, 3, 3, 3),
    Sketcher.Constraint("Horizontal", 5, 2, 8, 2),
    Sketcher.Constraint("Horizontal", 7, 2, 10, 2),
    Sketcher.Constraint("Equal", 7, 9),
    Sketcher.Constraint("Diameter", 0, Q("3 mm")),
    Sketcher.Constraint("DistanceX", 5, 1, 5, 2, Q("15 mm")),
    Sketcher.Constraint("DistanceY", 4, 2, 4, 1, Q("6 mm")),
    Sketcher.Constraint("DistanceY", -1, 1, 0, 3, Q("72 mm")),
    Sketcher.Constraint("DistanceY", -1, 1, 4, 2, Q("69 mm")),
    Sketcher.Constraint("DistanceX", 0, 3, 1, 3, Q("10 mm")),
    Sketcher.Constraint("DistanceX", 1, 3, 2, 3, Q("85 mm")),
    Sketcher.Constraint("DistanceX", 2, 3, 3, 3, Q("10 mm")),
    Sketcher.Constraint("DistanceX", 4, 2, 2, 3, Q("20 mm")),
    Sketcher.Constraint("DistanceX", 1, 3, 8, 2, Q("5 mm")),
    Sketcher.Constraint("DistanceX", 0, 3, -1, 1, Q("152.5 mm")),
])
pocket6 = body.newObject("PartDesign::Pocket", "Pocket005")
pocket6.Profile = sketch8
pocket6.Type = "ThroughAll"

sketch9 = body.newObject("Sketcher::SketchObject", "Sketch008")
sketch9.AttachmentSupport = (doc.getObject("XY_Plane"), [""])
sketch9.MapMode = "FlatFace"
sketch9.AttachmentOffset = App.Placement(App.Vector(0, 0, 6), App.Rotation())
sketch9.addGeometry([
    Part.Circle(App.Vector(-180, 93.5, 0), App.Vector(0, 0, 1), 1.5),
    Part.Circle(App.Vector(-180, 78.5, 0), App.Vector(0, 0, 1), 1.5),
], False)
sketch9.addConstraint([
    Sketcher.Constraint("Equal", 0, 1),
    Sketcher.Constraint("Vertical", 0, 3, 1, 3),
    Sketcher.Constraint("Diameter", 0, Q("3 mm")),
    Sketcher.Constraint("DistanceX", 0, 3, -1, 1, Q("180 mm")),
    Sketcher.Constraint("DistanceY", 1, 3, 0, 3, Q("15 mm")),
    Sketcher.Constraint("DistanceY", -1, 1, 0, 3, Q("93.5 mm")),
])
pocket7 = body.newObject("PartDesign::Pocket", "Pocket006")
pocket7.Profile = sketch9
pocket7.Type = "ThroughAll"

sketch10 = body.newObject("Sketcher::SketchObject", "Sketch009")
sketch10.AttachmentSupport = (doc.getObject("XY_Plane"), [""])
sketch10.MapMode = "FlatFace"
sketch10.AttachmentOffset = App.Placement(App.Vector(0, 0, 6), App.Rotation())
sketch10.addGeometry([
    Part.Circle(App.Vector(-180, 93.5, 0), App.Vector(0, 0, 1), 3),
    Part.Circle(App.Vector(-180, 78.5, 0), App.Vector(0, 0, 1), 3),
], False)
sketch10.addConstraint([
    Sketcher.Constraint("Equal", 0, 1),
    Sketcher.Constraint("Vertical", 0, 3, 1, 3),
    Sketcher.Constraint("Diameter", 0, Q("6 mm")),
    Sketcher.Constraint("DistanceX", 0, 3, -1, 1, Q("180 mm")),
    Sketcher.Constraint("DistanceY", 1, 3, 0, 3, Q("15 mm")),
    Sketcher.Constraint("DistanceY", -1, 1, 0, 3, Q("93.5 mm")),
])
pocket8 = body.newObject("PartDesign::Pocket", "Pocket007")
pocket8.Profile = sketch10
pocket8.Length = 3

sketch11 = body.newObject("Sketcher::SketchObject", "Sketch010")
sketch11.AttachmentSupport = (doc.getObject("XY_Plane"), [""])
sketch11.MapMode = "FlatFace"
sketch11.AttachmentOffset = App.Placement(App.Vector(0, 0, 6), App.Rotation())
sketch11.addGeometry([
    Part.Circle(App.Vector(-117.5, 107, 0), App.Vector(0, 0, 1), 1.5),
    Part.Circle(App.Vector(-82.5, 107, 0), App.Vector(0, 0, 1), 1.5),
    Part.Circle(App.Vector(-117.5, 33, 0), App.Vector(0, 0, 1), 1.5),
    Part.Circle(App.Vector(-82.5, 33, 0), App.Vector(0, 0, 1), 1.5),
    Part.Circle(App.Vector(-127.5, 107, 0), App.Vector(0, 0, 1), 1.5),
    Part.Circle(App.Vector(-72.5, 107, 0), App.Vector(0, 0, 1), 1.5),
    Part.Circle(App.Vector(-72.5, 33, 0), App.Vector(0, 0, 1), 1.5),
    Part.Circle(App.Vector(-127.5, 33, 0), App.Vector(0, 0, 1), 1.5),
    Part.LineSegment(App.Vector(-107.5, 110, 0), App.Vector(-107.5, 104, 0)),
    Part.LineSegment(App.Vector(-107.5, 104, 0), App.Vector(-92.5, 104, 0)),
    Part.LineSegment(App.Vector(-92.5, 104, 0), App.Vector(-92.5, 110, 0)),
    Part.LineSegment(App.Vector(-92.5, 110, 0), App.Vector(-107.5, 110, 0)),
    Part.LineSegment(App.Vector(-107.5, 36, 0), App.Vector(-107.5, 30, 0)),
    Part.LineSegment(App.Vector(-107.5, 30, 0), App.Vector(-92.5, 30, 0)),
    Part.LineSegment(App.Vector(-92.5, 30, 0), App.Vector(-92.5, 36, 0)),
    Part.LineSegment(App.Vector(-92.5, 36, 0), App.Vector(-107.5, 36, 0)),
], False)
sketch11.addConstraint([
    Sketcher.Constraint("Coincident", 8, 2, 9, 1),
    Sketcher.Constraint("Coincident", 9, 2, 10, 1),
    Sketcher.Constraint("Coincident", 10, 2, 11, 1),
    Sketcher.Constraint("Coincident", 11, 2, 8, 1),
    Sketcher.Constraint("Coincident", 12, 2, 13, 1),
    Sketcher.Constraint("Coincident", 13, 2, 14, 1),
    Sketcher.Constraint("Coincident", 14, 2, 15, 1),
    Sketcher.Constraint("Coincident", 15, 2, 12, 1),
    Sketcher.Constraint("Vertical", 8),
    Sketcher.Constraint("Horizontal", 9),
    Sketcher.Constraint("Vertical", 10),
    Sketcher.Constraint("Horizontal", 11),
    Sketcher.Constraint("Vertical", 12),
    Sketcher.Constraint("Horizontal", 13),
    Sketcher.Constraint("Vertical", 14),
    Sketcher.Constraint("Horizontal", 15),
    Sketcher.Constraint("Equal", 0, 1),
    Sketcher.Constraint("Equal", 1, 2),
    Sketcher.Constraint("Equal", 2, 3),
    Sketcher.Constraint("Equal", 3, 4),
    Sketcher.Constraint("Equal", 4, 5),
    Sketcher.Constraint("Equal", 5, 6),
    Sketcher.Constraint("Equal", 6, 7),
    Sketcher.Constraint("Horizontal", 0, 3, 1, 3),
    Sketcher.Constraint("Horizontal", 2, 3, 3, 3),
    Sketcher.Constraint("Horizontal", 1, 3, 4, 3),
    Sketcher.Constraint("Horizontal", 4, 3, 5, 3),
    Sketcher.Constraint("Horizontal", 3, 3, 6, 3),
    Sketcher.Constraint("Horizontal", 6, 3, 7, 3),
    Sketcher.Constraint("Vertical", 0, 3, 2, 3),
    Sketcher.Constraint("Vertical", 1, 3, 3, 3),
    Sketcher.Constraint("Vertical", 5, 3, 6, 3),
    Sketcher.Constraint("Vertical", 4, 3, 7, 3),
    Sketcher.Constraint("Vertical", 11, 2, 12, 2),
    Sketcher.Constraint("Vertical", 10, 2, 13, 2),
    Sketcher.Constraint("Equal", 10, 12),
    Sketcher.Constraint("Diameter", 0, Q("3 mm")),
    Sketcher.Constraint("DistanceX", 9, 1, 9, 2, Q("15 mm")),
    Sketcher.Constraint("DistanceY", 8, 2, 8, 1, Q("6 mm")),
    Sketcher.Constraint("DistanceY", -1, 1, 0, 3, Q("107 mm")),
    Sketcher.Constraint("DistanceY", -1, 1, 2, 3, Q("33 mm")),
    Sketcher.Constraint("DistanceY", -1, 1, 8, 2, Q("104 mm")),
    Sketcher.Constraint("DistanceY", -1, 1, 12, 2, Q("30 mm")),
    Sketcher.Constraint("DistanceX", 0, 3, 1, 3, Q("35 mm")),
    Sketcher.Constraint("DistanceX", 4, 3, 0, 3, Q("10 mm")),
    Sketcher.Constraint("DistanceX", 1, 3, 5, 3, Q("10 mm")),
    Sketcher.Constraint("DistanceX", 0, 3, 8, 2, Q("10 mm")),
    Sketcher.Constraint("DistanceX", 0, 3, -1, 1, Q("117.5 mm")),
])
pocket9 = body.newObject("PartDesign::Pocket", "Pocket008")
pocket9.Profile = sketch11
pocket9.Type = "ThroughAll"

sketch12 = body.newObject("Sketcher::SketchObject", "Sketch011")
sketch12.AttachmentSupport = (doc.getObject("XY_Plane"), [""])
sketch12.MapMode = "FlatFace"
sketch12.AttachmentOffset = App.Placement(App.Vector(0, 0, 6), App.Rotation())
sketch12.addGeometry([
    Part.Circle(App.Vector(-197, 100, 0), App.Vector(0, 0, 1), 2.995),
    Part.Circle(App.Vector(-142.5, 72, 0), App.Vector(0, 0, 1), 3),
    Part.Circle(App.Vector(-152.5, 72, 0), App.Vector(0, 0, 1), 3),
    Part.Circle(App.Vector(-57.5, 72, 0), App.Vector(0, 0, 1), 3),
    Part.Circle(App.Vector(-197, 40, 0), App.Vector(0, 0, 1), 2.995),
    Part.Circle(App.Vector(-3, 40, 0), App.Vector(0, 0, 1), 2.995),
    Part.Circle(App.Vector(-47.5, 72, 0), App.Vector(0, 0, 1), 3),
    Part.Circle(App.Vector(-3, 100, 0), App.Vector(0, 0, 1), 2.995),
], False)
sketch12.addConstraint([
    Sketcher.Constraint("Equal", 1, 2),
    Sketcher.Constraint("Equal", 2, 3),
    Sketcher.Constraint("Equal", 0, 4),
    Sketcher.Constraint("Equal", 4, 5),
    Sketcher.Constraint("Equal", 3, 6),
    Sketcher.Constraint("Equal", 5, 7),
    Sketcher.Constraint("Horizontal", 1, 3, 2, 3),
    Sketcher.Constraint("Horizontal", 2, 3, 3, 3),
    Sketcher.Constraint("Horizontal", 4, 3, 5, 3),
    Sketcher.Constraint("Horizontal", 3, 3, 6, 3),
    Sketcher.Constraint("Horizontal", 0, 3, 7, 3),
    Sketcher.Constraint("Vertical", 0, 3, 4, 3),
    Sketcher.Constraint("Vertical", 5, 3, 7, 3),
    Sketcher.Constraint("Diameter", 1, Q("6 mm")),
    Sketcher.Constraint("Diameter", 0, Q("5.99 mm")),
    Sketcher.Constraint("DistanceX", 0, 3, -1, 1, Q("197 mm")),
    Sketcher.Constraint("DistanceY", -1, 1, 0, 3, Q("100 mm")),
    Sketcher.Constraint("DistanceY", -1, 1, 1, 3, Q("72 mm")),
    Sketcher.Constraint("DistanceY", -1, 1, 4, 3, Q("40 mm")),
    Sketcher.Constraint("DistanceX", 5, 3, -1, 1, Q("3 mm")),
    Sketcher.Constraint("DistanceX", 2, 3, 1, 3, Q("10 mm")),
    Sketcher.Constraint("DistanceX", 1, 3, 3, 3, Q("85 mm")),
    Sketcher.Constraint("DistanceX", 3, 3, 6, 3, Q("10 mm")),
    Sketcher.Constraint("DistanceX", 1, 3, -1, 1, Q("142.5 mm")),
])
pocket10 = body.newObject("PartDesign::Pocket", "Pocket009")
pocket10.Profile = sketch12
pocket10.Length = 3

doc.recompute()
